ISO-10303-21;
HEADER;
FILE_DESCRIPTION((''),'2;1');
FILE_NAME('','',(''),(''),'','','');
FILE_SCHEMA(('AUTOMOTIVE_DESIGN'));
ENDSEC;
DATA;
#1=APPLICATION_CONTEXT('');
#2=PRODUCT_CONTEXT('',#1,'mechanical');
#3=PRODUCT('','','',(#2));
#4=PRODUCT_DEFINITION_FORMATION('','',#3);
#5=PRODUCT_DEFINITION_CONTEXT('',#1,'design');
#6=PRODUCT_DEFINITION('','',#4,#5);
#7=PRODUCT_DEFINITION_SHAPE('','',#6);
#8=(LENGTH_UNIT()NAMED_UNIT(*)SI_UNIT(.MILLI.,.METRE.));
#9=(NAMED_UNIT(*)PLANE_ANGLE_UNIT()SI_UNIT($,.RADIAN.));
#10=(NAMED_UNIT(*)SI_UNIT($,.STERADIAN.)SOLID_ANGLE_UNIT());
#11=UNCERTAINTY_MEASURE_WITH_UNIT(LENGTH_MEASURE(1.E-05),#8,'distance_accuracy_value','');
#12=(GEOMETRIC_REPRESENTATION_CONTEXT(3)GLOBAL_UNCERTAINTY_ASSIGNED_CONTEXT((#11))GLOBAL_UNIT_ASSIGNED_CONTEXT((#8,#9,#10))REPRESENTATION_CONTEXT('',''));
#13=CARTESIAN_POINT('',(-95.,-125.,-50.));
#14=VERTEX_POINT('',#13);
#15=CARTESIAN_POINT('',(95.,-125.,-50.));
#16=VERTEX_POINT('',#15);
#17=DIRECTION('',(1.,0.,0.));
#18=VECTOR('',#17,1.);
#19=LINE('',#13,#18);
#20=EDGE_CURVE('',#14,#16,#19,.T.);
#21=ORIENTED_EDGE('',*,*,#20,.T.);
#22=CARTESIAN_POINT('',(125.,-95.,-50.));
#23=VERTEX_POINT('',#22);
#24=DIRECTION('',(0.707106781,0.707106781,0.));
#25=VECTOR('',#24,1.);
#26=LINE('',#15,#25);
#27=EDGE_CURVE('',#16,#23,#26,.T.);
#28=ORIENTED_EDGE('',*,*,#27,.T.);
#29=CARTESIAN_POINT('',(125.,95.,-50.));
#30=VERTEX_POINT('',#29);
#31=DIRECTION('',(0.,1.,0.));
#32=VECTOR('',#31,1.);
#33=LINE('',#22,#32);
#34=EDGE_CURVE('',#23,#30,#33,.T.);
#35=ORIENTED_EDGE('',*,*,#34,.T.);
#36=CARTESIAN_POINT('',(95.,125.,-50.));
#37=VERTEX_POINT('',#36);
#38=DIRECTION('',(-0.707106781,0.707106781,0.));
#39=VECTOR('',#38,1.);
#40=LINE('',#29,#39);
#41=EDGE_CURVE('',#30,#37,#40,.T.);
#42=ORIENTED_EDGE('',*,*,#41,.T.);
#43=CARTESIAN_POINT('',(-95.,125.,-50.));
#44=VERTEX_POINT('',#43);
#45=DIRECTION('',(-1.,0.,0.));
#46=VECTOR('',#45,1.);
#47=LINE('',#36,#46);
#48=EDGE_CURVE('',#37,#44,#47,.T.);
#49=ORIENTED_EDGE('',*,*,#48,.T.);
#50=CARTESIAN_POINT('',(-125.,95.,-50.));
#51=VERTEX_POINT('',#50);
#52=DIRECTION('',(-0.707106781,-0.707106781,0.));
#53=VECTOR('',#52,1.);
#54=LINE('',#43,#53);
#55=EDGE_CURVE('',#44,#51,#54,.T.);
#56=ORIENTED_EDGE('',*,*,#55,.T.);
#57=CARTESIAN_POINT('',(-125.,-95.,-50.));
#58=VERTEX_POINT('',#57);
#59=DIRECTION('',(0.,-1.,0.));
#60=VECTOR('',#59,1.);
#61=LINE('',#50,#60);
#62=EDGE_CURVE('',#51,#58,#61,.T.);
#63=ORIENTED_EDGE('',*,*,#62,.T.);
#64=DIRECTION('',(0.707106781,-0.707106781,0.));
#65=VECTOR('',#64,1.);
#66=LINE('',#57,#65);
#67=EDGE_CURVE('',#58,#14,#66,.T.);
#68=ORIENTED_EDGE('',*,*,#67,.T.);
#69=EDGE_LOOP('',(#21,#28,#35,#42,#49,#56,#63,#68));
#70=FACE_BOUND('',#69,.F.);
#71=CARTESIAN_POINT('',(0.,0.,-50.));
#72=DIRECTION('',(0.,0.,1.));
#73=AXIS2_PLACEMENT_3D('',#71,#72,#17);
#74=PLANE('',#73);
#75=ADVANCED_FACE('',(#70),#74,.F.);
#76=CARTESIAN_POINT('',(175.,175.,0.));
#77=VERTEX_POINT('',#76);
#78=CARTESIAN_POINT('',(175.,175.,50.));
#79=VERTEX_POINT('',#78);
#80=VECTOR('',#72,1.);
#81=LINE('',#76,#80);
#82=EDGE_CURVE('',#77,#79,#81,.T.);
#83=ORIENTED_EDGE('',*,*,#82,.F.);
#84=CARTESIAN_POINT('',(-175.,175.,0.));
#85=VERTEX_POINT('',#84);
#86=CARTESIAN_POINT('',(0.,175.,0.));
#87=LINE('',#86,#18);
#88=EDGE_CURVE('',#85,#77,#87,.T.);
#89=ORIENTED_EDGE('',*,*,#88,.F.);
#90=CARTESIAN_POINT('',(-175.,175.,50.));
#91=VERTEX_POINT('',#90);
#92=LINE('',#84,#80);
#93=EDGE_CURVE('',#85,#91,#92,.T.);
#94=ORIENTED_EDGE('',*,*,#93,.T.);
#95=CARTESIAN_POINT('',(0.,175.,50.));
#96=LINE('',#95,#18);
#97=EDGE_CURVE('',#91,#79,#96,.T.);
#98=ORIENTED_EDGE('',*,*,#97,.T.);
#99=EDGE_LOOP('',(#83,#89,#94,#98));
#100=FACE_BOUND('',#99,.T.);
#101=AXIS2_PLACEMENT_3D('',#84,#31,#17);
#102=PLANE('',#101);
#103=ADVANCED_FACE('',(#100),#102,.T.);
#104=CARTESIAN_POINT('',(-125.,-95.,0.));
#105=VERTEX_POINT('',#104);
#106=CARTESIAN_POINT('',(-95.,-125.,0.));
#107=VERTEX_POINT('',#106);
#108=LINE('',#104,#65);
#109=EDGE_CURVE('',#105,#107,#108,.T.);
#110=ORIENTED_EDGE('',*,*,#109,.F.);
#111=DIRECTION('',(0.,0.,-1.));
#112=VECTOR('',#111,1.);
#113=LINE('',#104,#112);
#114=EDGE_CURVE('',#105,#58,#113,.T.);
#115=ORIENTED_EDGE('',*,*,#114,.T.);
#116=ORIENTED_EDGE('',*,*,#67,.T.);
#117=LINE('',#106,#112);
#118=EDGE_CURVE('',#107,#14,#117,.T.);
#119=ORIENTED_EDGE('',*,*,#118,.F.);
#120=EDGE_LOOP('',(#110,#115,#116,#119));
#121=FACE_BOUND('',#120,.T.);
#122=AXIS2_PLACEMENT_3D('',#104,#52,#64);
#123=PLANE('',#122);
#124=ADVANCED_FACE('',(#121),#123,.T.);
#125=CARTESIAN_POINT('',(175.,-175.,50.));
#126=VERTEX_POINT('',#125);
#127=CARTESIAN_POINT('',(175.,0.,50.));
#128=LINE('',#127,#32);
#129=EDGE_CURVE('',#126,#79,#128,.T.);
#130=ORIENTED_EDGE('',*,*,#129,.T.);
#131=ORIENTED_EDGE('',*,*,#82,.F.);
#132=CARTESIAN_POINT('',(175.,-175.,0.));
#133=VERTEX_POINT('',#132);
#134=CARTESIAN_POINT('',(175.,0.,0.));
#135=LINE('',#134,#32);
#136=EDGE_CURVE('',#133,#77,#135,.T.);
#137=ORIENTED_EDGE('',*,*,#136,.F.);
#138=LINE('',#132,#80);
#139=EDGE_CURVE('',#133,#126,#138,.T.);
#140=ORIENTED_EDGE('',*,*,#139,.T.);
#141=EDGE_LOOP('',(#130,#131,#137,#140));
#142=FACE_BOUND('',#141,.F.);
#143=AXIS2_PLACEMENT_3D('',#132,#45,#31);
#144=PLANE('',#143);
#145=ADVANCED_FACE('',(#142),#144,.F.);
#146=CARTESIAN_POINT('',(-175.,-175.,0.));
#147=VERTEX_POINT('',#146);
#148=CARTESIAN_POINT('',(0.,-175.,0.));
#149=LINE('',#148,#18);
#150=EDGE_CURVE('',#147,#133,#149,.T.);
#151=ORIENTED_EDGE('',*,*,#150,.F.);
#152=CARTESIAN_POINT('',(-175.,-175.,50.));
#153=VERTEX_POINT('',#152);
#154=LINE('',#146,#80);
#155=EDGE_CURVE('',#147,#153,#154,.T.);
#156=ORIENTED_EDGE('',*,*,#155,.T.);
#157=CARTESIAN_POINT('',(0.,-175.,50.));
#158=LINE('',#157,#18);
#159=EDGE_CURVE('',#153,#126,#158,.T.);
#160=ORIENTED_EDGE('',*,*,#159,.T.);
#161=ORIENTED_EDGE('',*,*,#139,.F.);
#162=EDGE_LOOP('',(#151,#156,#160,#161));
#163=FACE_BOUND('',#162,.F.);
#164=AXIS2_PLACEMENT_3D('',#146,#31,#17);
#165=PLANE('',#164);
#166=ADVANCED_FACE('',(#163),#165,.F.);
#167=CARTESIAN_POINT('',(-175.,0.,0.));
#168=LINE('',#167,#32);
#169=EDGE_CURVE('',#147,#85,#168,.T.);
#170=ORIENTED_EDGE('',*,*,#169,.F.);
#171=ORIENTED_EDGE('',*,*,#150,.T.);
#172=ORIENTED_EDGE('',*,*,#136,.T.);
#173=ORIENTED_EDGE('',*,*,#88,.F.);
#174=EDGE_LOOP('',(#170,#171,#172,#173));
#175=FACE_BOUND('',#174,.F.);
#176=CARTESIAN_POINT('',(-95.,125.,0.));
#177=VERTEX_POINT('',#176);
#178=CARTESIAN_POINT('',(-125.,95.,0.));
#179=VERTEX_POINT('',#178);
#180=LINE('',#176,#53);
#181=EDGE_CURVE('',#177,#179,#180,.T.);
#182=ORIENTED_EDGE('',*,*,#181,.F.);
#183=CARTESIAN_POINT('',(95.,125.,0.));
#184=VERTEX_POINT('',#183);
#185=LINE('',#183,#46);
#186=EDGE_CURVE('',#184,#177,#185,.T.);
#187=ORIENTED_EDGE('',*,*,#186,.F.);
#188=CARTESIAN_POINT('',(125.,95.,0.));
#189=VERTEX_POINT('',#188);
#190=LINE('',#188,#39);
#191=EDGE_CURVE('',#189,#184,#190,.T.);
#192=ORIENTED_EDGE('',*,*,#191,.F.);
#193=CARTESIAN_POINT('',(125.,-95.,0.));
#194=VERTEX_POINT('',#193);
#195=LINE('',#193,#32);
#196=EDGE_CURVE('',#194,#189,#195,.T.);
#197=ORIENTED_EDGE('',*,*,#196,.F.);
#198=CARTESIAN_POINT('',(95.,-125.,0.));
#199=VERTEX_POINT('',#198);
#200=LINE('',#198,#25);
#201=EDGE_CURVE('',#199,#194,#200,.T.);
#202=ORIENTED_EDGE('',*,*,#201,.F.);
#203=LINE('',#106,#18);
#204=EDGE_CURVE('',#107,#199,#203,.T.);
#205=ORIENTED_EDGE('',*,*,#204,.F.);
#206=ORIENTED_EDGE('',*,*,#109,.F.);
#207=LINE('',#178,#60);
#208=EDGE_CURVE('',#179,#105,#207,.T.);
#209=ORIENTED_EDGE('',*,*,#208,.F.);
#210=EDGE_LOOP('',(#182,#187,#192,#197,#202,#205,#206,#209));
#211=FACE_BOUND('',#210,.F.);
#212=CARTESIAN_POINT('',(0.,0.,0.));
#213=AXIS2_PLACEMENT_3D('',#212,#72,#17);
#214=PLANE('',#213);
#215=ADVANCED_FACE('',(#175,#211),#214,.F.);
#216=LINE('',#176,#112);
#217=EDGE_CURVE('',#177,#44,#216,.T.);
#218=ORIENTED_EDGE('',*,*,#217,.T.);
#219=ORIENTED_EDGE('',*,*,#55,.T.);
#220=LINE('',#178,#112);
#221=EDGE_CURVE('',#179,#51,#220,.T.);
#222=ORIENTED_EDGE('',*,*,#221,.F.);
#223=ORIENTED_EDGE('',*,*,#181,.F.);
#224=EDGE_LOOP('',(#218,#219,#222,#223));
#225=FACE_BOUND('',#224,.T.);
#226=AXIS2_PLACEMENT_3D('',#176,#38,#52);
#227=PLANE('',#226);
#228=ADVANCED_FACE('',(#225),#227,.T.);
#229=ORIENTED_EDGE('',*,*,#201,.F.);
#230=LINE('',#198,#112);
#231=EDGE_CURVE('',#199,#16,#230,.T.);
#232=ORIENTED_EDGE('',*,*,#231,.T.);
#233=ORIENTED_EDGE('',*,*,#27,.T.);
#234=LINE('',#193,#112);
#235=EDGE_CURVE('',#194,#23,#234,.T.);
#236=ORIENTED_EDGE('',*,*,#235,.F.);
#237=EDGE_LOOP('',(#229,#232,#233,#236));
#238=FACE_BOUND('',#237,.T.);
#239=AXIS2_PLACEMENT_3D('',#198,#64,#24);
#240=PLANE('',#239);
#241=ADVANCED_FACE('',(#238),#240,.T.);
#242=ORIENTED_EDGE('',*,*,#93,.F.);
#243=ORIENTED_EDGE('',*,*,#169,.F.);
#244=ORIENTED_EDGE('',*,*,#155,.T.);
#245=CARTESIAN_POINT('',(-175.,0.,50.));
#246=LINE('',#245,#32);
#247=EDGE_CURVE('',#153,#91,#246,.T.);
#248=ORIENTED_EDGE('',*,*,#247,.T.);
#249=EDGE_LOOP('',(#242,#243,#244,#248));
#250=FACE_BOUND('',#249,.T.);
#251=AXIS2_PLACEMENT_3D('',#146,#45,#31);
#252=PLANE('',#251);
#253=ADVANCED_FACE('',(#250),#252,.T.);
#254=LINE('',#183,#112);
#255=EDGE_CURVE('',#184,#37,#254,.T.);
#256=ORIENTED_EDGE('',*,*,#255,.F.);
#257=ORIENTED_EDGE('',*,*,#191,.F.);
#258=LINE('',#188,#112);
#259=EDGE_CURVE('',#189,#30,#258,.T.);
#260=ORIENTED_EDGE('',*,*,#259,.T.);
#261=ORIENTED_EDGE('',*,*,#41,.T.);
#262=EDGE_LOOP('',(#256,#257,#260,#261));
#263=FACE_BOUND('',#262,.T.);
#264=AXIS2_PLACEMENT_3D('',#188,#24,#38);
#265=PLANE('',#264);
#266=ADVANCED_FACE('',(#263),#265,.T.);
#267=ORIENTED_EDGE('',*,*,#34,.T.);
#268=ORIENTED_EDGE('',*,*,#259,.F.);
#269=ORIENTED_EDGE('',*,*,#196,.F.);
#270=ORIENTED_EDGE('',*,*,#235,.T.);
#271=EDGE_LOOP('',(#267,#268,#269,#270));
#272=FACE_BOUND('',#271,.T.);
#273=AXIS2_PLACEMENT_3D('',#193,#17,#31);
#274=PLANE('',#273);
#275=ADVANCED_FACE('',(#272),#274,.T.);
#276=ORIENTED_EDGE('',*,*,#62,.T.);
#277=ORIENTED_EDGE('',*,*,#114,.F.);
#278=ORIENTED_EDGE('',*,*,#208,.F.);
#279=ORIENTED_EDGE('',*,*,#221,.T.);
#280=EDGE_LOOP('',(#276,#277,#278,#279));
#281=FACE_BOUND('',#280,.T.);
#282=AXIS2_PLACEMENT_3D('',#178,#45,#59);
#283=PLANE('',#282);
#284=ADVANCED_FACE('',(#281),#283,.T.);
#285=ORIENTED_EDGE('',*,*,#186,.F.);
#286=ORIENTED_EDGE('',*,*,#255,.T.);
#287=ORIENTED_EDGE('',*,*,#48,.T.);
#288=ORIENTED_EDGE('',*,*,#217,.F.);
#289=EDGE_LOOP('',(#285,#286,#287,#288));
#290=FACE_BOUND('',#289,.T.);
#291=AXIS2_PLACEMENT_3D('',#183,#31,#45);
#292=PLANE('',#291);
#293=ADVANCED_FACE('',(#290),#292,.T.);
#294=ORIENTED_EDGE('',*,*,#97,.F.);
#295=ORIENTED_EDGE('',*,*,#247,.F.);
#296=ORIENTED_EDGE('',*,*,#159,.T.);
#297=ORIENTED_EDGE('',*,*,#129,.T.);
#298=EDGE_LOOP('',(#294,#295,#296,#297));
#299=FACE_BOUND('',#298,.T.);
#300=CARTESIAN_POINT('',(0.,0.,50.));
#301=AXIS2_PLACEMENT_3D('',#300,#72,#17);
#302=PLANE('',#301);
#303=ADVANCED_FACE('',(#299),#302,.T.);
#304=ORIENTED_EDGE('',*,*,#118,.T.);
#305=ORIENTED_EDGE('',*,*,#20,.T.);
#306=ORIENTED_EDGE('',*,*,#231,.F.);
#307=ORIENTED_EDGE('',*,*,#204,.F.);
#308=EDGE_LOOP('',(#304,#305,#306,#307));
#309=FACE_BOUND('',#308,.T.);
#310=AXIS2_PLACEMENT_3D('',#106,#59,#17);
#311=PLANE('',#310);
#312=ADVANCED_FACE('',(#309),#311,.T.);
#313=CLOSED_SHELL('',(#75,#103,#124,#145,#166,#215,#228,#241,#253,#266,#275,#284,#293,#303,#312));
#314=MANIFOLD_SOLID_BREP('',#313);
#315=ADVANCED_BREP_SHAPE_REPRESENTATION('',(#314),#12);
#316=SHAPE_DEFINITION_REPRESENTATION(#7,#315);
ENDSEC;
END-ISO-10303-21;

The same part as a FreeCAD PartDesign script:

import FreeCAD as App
import Part
import Sketcher


def add_polygon(sketch, points):
    """Adds a closed chain of lines whose ends are joined by coincident constraints."""
    first, n = sketch.GeometryCount, len(points)
    for a, b in zip(points, points[1:] + points[:1]):
        sketch.addGeometry(Part.LineSegment(App.Vector(*a, 0), App.Vector(*b, 0)), False)
    for i in range(n):
        sketch.addConstraint(Sketcher.Constraint("Coincident", first + i, 2, first + (i + 1) % n, 1))

doc = App.newDocument("Part")
params = doc.addObject("Spreadsheet::Sheet", "Params")
for row, (alias, value) in enumerate([
    ("sketch1_width", "350 mm"),
    ("pad1_length", "50 mm"),
    ("sketch2_width", "190 mm"),
    ("pad2_length", "50 mm"),
], start=1):
    params.set(f"A{row}", alias)
    params.set(f"B{row}", "=" + value)
    params.setAlias(f"B{row}", alias)

body = doc.addObject("PartDesign::Body", "Body")

# Sketch on XY plane
sketch1 = body.newObject("Sketcher::SketchObject", "Sketch")
sketch1.AttachmentSupport = (doc.getObject("XY_Plane"), [""])
sketch1.MapMode = "FlatFace"
add_polygon(sketch1, [(-175, 175), (-175, -175), (175, -175), (175, 175)])  # lines 0-3
sketch1.addConstraint([
    Sketcher.Constraint("Vertical", 0),
    Sketcher.Constraint("Horizontal", 1),
    Sketcher.Constraint("Vertical", 2),
    Sketcher.Constraint("Horizontal", 3),
    Sketcher.Constraint("Symmetric", 0, 2, 2, 2, -1, 1),
    Sketcher.Constraint("Equal", 3, 0),
    Sketcher.Constraint("DistanceX", 1, 1, 1, 2, 350.0),
])
sketch1.setExpression("Constraints[10]", "Params.sketch1_width")
pad1 = body.newObject("PartDesign::Pad", "Pad")
pad1.Profile = sketch1
pad1.setExpression("Length", "Params.pad1_length")

# Sketch on XY plane
sketch2 = body.newObject("Sketcher::SketchObject", "Sketch001")
sketch2.AttachmentSupport = (doc.getObject("XY_Plane"), [""])
sketch2.MapMode = "FlatFace"
add_polygon(sketch2, [(-95, -125), (95, -125), (125, -95), (125, 95), (95, 125), (-95, 125), (-125, 95), (-125, -95)])  # lines 0-7
sketch2.addConstraint([
    Sketcher.Constraint("Horizontal", 0),
    Sketcher.Constraint("Vertical", 2),
    Sketcher.Constraint("Horizontal", 4),
    Sketcher.Constraint("Vertical", 6),
    Sketcher.Constraint("Symmetric", 0, 2, 4, 2, -1, 1),
    Sketcher.Constraint("Symmetric", 1, 2, 5, 2, -1, 1),
    Sketcher.Constraint("Perpendicular", 1, 3),
    Sketcher.Constraint("Perpendicular", 5, 7),
    Sketcher.Constraint("Horizontal", 2, 2, 5, 2),
    Sketcher.Constraint("Horizontal", 1, 2, 6, 2),
    Sketcher.Constraint("Vertical", 0, 2, 3, 2),
    Sketcher.Constraint("Equal", 4, 2),
    Sketcher.Constraint("DistanceX", 0, 1, 0, 2, 190.0),
    Sketcher.Constraint("DistanceY", 0, 2, -1, 1, 125.0),
])
sketch2.setExpression("Constraints[20]", "Params.sketch2_width")
pad2 = body.newObject("PartDesign::Pad", "Pad001")
pad2.Profile = sketch2
pad2.setExpression("Length", "Params.pad2_length")
pad2.Reversed = True

doc.recompute()
